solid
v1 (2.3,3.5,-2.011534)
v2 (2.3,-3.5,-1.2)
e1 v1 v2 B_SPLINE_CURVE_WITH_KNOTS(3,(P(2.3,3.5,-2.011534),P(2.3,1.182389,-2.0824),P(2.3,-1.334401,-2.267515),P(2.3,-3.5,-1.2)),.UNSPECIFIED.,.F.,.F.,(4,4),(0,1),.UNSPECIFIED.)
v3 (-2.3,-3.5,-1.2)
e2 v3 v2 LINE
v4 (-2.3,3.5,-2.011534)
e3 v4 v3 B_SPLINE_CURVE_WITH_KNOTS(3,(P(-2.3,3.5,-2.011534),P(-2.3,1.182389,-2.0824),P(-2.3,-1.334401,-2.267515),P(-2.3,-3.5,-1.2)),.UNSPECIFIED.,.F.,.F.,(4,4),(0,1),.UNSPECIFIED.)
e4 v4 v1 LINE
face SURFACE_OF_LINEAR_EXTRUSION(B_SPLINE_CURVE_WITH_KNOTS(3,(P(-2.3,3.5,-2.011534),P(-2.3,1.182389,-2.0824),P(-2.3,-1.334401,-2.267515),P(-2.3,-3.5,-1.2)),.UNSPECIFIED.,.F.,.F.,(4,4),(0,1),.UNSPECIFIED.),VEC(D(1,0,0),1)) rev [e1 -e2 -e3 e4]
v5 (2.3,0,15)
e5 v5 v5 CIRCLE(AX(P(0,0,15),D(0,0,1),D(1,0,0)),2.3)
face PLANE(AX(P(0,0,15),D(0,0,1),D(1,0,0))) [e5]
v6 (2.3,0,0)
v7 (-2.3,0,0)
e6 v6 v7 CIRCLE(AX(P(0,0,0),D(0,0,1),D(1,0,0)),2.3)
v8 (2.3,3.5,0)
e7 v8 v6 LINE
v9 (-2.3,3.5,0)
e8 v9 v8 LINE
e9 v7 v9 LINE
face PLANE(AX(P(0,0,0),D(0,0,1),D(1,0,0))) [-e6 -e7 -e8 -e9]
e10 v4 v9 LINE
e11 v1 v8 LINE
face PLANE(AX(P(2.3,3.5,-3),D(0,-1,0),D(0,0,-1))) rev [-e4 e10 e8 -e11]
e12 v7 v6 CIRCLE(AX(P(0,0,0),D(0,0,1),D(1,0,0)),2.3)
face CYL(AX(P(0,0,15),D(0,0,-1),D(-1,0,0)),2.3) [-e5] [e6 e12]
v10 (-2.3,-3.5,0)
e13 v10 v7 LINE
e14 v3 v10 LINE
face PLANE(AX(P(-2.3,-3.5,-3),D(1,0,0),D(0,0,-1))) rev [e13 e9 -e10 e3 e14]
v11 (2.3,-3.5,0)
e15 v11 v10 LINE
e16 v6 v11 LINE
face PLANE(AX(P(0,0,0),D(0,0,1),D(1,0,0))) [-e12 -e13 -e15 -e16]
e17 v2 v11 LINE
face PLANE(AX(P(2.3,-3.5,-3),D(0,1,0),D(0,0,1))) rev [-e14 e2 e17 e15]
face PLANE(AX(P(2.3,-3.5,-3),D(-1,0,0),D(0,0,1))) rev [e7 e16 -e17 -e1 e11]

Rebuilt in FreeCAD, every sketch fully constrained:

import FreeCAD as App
import Part
import Sketcher
from FreeCAD import Vector
Q = App.Units.Quantity

doc = App.newDocument("Part")
params = doc.addObject("Spreadsheet::Sheet", "Params")
for row, (alias, value) in enumerate([
    ("sketch1_diameter", "4.6 mm"),
    ("pad1_length", "15 mm"),
    ("sketch2_height", "7 mm"),
    ("sketch2_width", "4.6 mm"),
    ("pad2_length", "3 mm"),
    ("sketch3_height", "1.8 mm"),
    ("pocket1_length", "4.6 mm"),
], start=1):
    params.set(f"A{row}", alias)
    params.set(f"B{row}", "=" + value)
    params.setAlias(f"B{row}", alias)

body = doc.addObject("PartDesign::Body", "Body")

sketch1 = body.newObject("Sketcher::SketchObject", "Sketch")
sketch1.AttachmentSupport = (doc.getObject("XY_Plane"), [""])
sketch1.MapMode = "FlatFace"
sketch1.addGeometry(Part.Circle(Vector(0, 0, 0), Vector(0, 0, 1), 2.3), False)
sketch1.addConstraint(Sketcher.Constraint("Coincident", 0, 3, -1, 1))
sketch1.addConstraint(Sketcher.Constraint("Diameter", 0, Q("4.6 mm")))
sketch1.setExpression("Constraints[1]", "Params.sketch1_diameter")
pad1 = body.newObject("PartDesign::Pad", "Pad")
pad1.Profile = sketch1
pad1.setExpression("Length", "Params.pad1_length")

sketch2 = body.newObject("Sketcher::SketchObject", "Sketch001")
sketch2.AttachmentSupport = (doc.getObject("XY_Plane"), [""])
sketch2.MapMode = "FlatFace"
sketch2.addGeometry(Part.LineSegment(Vector(2.3, 3.5, 0), Vector(2.3, -3.5, 0)), False)
sketch2.addGeometry(Part.LineSegment(Vector(2.3, -3.5, 0), Vector(-2.3, -3.5, 0)), False)
sketch2.addGeometry(Part.LineSegment(Vector(-2.3, -3.5, 0), Vector(-2.3, 3.5, 0)), False)
sketch2.addGeometry(Part.LineSegment(Vector(-2.3, 3.5, 0), Vector(2.3, 3.5, 0)), False)
sketch2.addConstraint(Sketcher.Constraint("Coincident", 0, 2, 1, 1))
sketch2.addConstraint(Sketcher.Constraint("Coincident", 1, 2, 2, 1))
sketch2.addConstraint(Sketcher.Constraint("Coincident", 2, 2, 3, 1))
sketch2.addConstraint(Sketcher.Constraint("Coincident", 3, 2, 0, 1))
sketch2.addConstraint(Sketcher.Constraint("Vertical", 0))
sketch2.addConstraint(Sketcher.Constraint("Horizontal", 1))
sketch2.addConstraint(Sketcher.Constraint("Vertical", 2))
sketch2.addConstraint(Sketcher.Constraint("Horizontal", 3))
sketch2.addConstraint(Sketcher.Constraint("Symmetric", 0, 2, 2, 2, -1, 1))
sketch2.addConstraint(Sketcher.Constraint("DistanceY", 0, 2, 0, 1, Q("7 mm")))
sketch2.addConstraint(Sketcher.Constraint("DistanceX", 1, 2, 1, 1, Q("4.6 mm")))
sketch2.setExpression("Constraints[9]", "Params.sketch2_height")
sketch2.setExpression("Constraints[10]", "Params.sketch2_width")
pad2 = body.newObject("PartDesign::Pad", "Pad001")
pad2.Profile = sketch2
pad2.setExpression("Length", "Params.pad2_length")
pad2.Reversed = True

sketch3 = body.newObject("Sketcher::SketchObject", "Sketch002")
sketch3.AttachmentSupport = (doc.getObject("YZ_Plane"), [""])
sketch3.MapMode = "FlatFace"
sketch3.AttachmentOffset = App.Placement(Vector(0, 0, 2.3), App.Rotation())
sketch3.addGeometry(Part.LineSegment(Vector(-3.5, -1.2, 0), Vector(-3.5, -3, 0)), False)
sketch3.addGeometry(Part.LineSegment(Vector(-3.5, -3, 0), Vector(3.5, -3, 0)), False)
sketch3.addGeometry(Part.LineSegment(Vector(3.5, -3, 0), Vector(3.5, -2.011534, 0)), False)
sketch3.addGeometry(Part.BSplineCurve([Vector(-3.5, -1.2, 0), Vector(-1.334401, -2.267515, 0), Vector(1.182389, -2.0824, 0), Vector(3.5, -2.011534, 0)], [4, 4], [0, 1], False, 3, [1, 1, 1, 1], False), False)
sketch3.addConstraint(Sketcher.Constraint("Block", 3))
sketch3.addConstraint(Sketcher.Constraint("Coincident", 0, 2, 1, 1))
sketch3.addConstraint(Sketcher.Constraint("Coincident", 1, 2, 2, 1))
sketch3.addConstraint(Sketcher.Constraint("Coincident", 2, 2, 3, 2))
sketch3.addConstraint(Sketcher.Constraint("Coincident", 3, 1, 0, 1))
sketch3.addConstraint(Sketcher.Constraint("Vertical", 0))
sketch3.addConstraint(Sketcher.Constraint("Horizontal", 1))
sketch3.addConstraint(Sketcher.Constraint("Vertical", 2))
sketch3.addConstraint(Sketcher.Constraint("DistanceY", 0, 2, 0, 1, Q("1.8 mm")))
sketch3.setExpression("Constraints[8]", "Params.sketch3_height")
pocket1 = body.newObject("PartDesign::Pocket", "Pocket")
pocket1.Profile = sketch3
pocket1.setExpression("Length", "Params.pocket1_length")

doc.recompute()
